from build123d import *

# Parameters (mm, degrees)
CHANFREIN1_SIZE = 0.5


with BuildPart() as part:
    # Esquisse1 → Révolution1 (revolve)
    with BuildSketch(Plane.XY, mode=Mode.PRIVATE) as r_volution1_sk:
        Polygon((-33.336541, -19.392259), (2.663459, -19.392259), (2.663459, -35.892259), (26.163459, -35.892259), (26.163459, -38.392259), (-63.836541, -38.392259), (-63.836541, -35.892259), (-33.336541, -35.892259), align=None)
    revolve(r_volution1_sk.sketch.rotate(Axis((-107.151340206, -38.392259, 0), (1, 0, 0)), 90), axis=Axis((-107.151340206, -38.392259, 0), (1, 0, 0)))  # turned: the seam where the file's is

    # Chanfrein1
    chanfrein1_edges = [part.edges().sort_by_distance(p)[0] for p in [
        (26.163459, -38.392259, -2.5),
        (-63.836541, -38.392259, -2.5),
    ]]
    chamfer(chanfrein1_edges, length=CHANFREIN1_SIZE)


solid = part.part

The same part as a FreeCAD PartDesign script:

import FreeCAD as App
import Part
import Sketcher

V = App.Vector
Q = App.Units.Quantity


def edges_at(feature, points):
    """Names of the edges that pass closest to the given points."""
    edges = feature.Shape.Edges
    near = lambda p: min(range(len(edges)), key=lambda i: edges[i].distToShape(Part.Vertex(*p))[0])
    return sorted({f"Edge{near(p) + 1}" for p in points})


def add_polygon(sketch, points):
    """Adds a closed chain of lines whose ends are joined by coincident constraints."""
    first, n = sketch.GeometryCount, len(points)
    for a, b in zip(points, points[1:] + points[:1]):
        sketch.addGeometry(Part.LineSegment(App.Vector(*a, 0), App.Vector(*b, 0)), False)
    for i in range(n):
        sketch.addConstraint(Sketcher.Constraint("Coincident", first + i, 2, first + (i + 1) % n, 1))

doc = App.newDocument("Part")
body = doc.addObject("PartDesign::Body", "Body")

# Sketch on XY plane
sketch1 = body.newObject("Sketcher::SketchObject", "Sketch")
sketch1.AttachmentSupport = (doc.getObject("XY_Plane"), [""])
sketch1.MapMode = "FlatFace"
add_polygon(sketch1, [(2.7, -19.4), (-33.3, -19.4), (-33.3, -35.9), (-63.8, -35.9), (-63.8, -38.4), (26.2, -38.4), (26.2, -35.9), (2.7, -35.9)])  # lines 0-7
sketch1.addGeometry(Part.LineSegment(V(-63.8, -38.4, 0), V(26.2, -38.4, 0)), True)  # axis
sketch1.addConstraint([
    Sketcher.Constraint("Horizontal", 0),
    Sketcher.Constraint("Vertical", 1),
    Sketcher.Constraint("Horizontal", 2),
    Sketcher.Constraint("Vertical", 3),
    Sketcher.Constraint("Horizontal", 4),
    Sketcher.Constraint("Vertical", 5),
    Sketcher.Constraint("Horizontal", 6),
    Sketcher.Constraint("Vertical", 7),
    Sketcher.Constraint("Horizontal", 8),
    Sketcher.Constraint("Coincident", 8, 1, 3, 2),
    Sketcher.Constraint("Horizontal", 2, 2, 5, 2),
    Sketcher.Constraint("Vertical", 5, 2, 8, 2),
    Sketcher.Constraint("DistanceX", 0, 2, 0, 1, Q("36 mm")),
    Sketcher.Constraint("DistanceX", 4, 1, 4, 2, Q("90 mm")),
    Sketcher.Constraint("DistanceX", 2, 2, 2, 1, Q("30.5 mm")),
    Sketcher.Constraint("DistanceY", 1, 2, 1, 1, Q("16.5 mm")),
    Sketcher.Constraint("DistanceY", 3, 2, 3, 1, Q("2.5 mm")),
    Sketcher.Constraint("DistanceX", 0, 2, -1, 1, Q("33.336541 mm")),
    Sketcher.Constraint("DistanceY", 0, 2, -1, 1, Q("19.392259 mm")),
])
revolution = body.newObject("PartDesign::Revolution", "Revolution")
revolution.Profile = sketch1
revolution.ReferenceAxis = (sketch1, ["Axis0"])
revolution.Angle = 360
doc.recompute()

chamfer = body.newObject("PartDesign::Chamfer", "Chamfer")
chamfer.Base = (revolution, edges_at(revolution, [(26.163, -38.392, -2.5), (-63.837, -38.392, -2.5)]))
chamfer.Size = 0.5

doc.recompute()
